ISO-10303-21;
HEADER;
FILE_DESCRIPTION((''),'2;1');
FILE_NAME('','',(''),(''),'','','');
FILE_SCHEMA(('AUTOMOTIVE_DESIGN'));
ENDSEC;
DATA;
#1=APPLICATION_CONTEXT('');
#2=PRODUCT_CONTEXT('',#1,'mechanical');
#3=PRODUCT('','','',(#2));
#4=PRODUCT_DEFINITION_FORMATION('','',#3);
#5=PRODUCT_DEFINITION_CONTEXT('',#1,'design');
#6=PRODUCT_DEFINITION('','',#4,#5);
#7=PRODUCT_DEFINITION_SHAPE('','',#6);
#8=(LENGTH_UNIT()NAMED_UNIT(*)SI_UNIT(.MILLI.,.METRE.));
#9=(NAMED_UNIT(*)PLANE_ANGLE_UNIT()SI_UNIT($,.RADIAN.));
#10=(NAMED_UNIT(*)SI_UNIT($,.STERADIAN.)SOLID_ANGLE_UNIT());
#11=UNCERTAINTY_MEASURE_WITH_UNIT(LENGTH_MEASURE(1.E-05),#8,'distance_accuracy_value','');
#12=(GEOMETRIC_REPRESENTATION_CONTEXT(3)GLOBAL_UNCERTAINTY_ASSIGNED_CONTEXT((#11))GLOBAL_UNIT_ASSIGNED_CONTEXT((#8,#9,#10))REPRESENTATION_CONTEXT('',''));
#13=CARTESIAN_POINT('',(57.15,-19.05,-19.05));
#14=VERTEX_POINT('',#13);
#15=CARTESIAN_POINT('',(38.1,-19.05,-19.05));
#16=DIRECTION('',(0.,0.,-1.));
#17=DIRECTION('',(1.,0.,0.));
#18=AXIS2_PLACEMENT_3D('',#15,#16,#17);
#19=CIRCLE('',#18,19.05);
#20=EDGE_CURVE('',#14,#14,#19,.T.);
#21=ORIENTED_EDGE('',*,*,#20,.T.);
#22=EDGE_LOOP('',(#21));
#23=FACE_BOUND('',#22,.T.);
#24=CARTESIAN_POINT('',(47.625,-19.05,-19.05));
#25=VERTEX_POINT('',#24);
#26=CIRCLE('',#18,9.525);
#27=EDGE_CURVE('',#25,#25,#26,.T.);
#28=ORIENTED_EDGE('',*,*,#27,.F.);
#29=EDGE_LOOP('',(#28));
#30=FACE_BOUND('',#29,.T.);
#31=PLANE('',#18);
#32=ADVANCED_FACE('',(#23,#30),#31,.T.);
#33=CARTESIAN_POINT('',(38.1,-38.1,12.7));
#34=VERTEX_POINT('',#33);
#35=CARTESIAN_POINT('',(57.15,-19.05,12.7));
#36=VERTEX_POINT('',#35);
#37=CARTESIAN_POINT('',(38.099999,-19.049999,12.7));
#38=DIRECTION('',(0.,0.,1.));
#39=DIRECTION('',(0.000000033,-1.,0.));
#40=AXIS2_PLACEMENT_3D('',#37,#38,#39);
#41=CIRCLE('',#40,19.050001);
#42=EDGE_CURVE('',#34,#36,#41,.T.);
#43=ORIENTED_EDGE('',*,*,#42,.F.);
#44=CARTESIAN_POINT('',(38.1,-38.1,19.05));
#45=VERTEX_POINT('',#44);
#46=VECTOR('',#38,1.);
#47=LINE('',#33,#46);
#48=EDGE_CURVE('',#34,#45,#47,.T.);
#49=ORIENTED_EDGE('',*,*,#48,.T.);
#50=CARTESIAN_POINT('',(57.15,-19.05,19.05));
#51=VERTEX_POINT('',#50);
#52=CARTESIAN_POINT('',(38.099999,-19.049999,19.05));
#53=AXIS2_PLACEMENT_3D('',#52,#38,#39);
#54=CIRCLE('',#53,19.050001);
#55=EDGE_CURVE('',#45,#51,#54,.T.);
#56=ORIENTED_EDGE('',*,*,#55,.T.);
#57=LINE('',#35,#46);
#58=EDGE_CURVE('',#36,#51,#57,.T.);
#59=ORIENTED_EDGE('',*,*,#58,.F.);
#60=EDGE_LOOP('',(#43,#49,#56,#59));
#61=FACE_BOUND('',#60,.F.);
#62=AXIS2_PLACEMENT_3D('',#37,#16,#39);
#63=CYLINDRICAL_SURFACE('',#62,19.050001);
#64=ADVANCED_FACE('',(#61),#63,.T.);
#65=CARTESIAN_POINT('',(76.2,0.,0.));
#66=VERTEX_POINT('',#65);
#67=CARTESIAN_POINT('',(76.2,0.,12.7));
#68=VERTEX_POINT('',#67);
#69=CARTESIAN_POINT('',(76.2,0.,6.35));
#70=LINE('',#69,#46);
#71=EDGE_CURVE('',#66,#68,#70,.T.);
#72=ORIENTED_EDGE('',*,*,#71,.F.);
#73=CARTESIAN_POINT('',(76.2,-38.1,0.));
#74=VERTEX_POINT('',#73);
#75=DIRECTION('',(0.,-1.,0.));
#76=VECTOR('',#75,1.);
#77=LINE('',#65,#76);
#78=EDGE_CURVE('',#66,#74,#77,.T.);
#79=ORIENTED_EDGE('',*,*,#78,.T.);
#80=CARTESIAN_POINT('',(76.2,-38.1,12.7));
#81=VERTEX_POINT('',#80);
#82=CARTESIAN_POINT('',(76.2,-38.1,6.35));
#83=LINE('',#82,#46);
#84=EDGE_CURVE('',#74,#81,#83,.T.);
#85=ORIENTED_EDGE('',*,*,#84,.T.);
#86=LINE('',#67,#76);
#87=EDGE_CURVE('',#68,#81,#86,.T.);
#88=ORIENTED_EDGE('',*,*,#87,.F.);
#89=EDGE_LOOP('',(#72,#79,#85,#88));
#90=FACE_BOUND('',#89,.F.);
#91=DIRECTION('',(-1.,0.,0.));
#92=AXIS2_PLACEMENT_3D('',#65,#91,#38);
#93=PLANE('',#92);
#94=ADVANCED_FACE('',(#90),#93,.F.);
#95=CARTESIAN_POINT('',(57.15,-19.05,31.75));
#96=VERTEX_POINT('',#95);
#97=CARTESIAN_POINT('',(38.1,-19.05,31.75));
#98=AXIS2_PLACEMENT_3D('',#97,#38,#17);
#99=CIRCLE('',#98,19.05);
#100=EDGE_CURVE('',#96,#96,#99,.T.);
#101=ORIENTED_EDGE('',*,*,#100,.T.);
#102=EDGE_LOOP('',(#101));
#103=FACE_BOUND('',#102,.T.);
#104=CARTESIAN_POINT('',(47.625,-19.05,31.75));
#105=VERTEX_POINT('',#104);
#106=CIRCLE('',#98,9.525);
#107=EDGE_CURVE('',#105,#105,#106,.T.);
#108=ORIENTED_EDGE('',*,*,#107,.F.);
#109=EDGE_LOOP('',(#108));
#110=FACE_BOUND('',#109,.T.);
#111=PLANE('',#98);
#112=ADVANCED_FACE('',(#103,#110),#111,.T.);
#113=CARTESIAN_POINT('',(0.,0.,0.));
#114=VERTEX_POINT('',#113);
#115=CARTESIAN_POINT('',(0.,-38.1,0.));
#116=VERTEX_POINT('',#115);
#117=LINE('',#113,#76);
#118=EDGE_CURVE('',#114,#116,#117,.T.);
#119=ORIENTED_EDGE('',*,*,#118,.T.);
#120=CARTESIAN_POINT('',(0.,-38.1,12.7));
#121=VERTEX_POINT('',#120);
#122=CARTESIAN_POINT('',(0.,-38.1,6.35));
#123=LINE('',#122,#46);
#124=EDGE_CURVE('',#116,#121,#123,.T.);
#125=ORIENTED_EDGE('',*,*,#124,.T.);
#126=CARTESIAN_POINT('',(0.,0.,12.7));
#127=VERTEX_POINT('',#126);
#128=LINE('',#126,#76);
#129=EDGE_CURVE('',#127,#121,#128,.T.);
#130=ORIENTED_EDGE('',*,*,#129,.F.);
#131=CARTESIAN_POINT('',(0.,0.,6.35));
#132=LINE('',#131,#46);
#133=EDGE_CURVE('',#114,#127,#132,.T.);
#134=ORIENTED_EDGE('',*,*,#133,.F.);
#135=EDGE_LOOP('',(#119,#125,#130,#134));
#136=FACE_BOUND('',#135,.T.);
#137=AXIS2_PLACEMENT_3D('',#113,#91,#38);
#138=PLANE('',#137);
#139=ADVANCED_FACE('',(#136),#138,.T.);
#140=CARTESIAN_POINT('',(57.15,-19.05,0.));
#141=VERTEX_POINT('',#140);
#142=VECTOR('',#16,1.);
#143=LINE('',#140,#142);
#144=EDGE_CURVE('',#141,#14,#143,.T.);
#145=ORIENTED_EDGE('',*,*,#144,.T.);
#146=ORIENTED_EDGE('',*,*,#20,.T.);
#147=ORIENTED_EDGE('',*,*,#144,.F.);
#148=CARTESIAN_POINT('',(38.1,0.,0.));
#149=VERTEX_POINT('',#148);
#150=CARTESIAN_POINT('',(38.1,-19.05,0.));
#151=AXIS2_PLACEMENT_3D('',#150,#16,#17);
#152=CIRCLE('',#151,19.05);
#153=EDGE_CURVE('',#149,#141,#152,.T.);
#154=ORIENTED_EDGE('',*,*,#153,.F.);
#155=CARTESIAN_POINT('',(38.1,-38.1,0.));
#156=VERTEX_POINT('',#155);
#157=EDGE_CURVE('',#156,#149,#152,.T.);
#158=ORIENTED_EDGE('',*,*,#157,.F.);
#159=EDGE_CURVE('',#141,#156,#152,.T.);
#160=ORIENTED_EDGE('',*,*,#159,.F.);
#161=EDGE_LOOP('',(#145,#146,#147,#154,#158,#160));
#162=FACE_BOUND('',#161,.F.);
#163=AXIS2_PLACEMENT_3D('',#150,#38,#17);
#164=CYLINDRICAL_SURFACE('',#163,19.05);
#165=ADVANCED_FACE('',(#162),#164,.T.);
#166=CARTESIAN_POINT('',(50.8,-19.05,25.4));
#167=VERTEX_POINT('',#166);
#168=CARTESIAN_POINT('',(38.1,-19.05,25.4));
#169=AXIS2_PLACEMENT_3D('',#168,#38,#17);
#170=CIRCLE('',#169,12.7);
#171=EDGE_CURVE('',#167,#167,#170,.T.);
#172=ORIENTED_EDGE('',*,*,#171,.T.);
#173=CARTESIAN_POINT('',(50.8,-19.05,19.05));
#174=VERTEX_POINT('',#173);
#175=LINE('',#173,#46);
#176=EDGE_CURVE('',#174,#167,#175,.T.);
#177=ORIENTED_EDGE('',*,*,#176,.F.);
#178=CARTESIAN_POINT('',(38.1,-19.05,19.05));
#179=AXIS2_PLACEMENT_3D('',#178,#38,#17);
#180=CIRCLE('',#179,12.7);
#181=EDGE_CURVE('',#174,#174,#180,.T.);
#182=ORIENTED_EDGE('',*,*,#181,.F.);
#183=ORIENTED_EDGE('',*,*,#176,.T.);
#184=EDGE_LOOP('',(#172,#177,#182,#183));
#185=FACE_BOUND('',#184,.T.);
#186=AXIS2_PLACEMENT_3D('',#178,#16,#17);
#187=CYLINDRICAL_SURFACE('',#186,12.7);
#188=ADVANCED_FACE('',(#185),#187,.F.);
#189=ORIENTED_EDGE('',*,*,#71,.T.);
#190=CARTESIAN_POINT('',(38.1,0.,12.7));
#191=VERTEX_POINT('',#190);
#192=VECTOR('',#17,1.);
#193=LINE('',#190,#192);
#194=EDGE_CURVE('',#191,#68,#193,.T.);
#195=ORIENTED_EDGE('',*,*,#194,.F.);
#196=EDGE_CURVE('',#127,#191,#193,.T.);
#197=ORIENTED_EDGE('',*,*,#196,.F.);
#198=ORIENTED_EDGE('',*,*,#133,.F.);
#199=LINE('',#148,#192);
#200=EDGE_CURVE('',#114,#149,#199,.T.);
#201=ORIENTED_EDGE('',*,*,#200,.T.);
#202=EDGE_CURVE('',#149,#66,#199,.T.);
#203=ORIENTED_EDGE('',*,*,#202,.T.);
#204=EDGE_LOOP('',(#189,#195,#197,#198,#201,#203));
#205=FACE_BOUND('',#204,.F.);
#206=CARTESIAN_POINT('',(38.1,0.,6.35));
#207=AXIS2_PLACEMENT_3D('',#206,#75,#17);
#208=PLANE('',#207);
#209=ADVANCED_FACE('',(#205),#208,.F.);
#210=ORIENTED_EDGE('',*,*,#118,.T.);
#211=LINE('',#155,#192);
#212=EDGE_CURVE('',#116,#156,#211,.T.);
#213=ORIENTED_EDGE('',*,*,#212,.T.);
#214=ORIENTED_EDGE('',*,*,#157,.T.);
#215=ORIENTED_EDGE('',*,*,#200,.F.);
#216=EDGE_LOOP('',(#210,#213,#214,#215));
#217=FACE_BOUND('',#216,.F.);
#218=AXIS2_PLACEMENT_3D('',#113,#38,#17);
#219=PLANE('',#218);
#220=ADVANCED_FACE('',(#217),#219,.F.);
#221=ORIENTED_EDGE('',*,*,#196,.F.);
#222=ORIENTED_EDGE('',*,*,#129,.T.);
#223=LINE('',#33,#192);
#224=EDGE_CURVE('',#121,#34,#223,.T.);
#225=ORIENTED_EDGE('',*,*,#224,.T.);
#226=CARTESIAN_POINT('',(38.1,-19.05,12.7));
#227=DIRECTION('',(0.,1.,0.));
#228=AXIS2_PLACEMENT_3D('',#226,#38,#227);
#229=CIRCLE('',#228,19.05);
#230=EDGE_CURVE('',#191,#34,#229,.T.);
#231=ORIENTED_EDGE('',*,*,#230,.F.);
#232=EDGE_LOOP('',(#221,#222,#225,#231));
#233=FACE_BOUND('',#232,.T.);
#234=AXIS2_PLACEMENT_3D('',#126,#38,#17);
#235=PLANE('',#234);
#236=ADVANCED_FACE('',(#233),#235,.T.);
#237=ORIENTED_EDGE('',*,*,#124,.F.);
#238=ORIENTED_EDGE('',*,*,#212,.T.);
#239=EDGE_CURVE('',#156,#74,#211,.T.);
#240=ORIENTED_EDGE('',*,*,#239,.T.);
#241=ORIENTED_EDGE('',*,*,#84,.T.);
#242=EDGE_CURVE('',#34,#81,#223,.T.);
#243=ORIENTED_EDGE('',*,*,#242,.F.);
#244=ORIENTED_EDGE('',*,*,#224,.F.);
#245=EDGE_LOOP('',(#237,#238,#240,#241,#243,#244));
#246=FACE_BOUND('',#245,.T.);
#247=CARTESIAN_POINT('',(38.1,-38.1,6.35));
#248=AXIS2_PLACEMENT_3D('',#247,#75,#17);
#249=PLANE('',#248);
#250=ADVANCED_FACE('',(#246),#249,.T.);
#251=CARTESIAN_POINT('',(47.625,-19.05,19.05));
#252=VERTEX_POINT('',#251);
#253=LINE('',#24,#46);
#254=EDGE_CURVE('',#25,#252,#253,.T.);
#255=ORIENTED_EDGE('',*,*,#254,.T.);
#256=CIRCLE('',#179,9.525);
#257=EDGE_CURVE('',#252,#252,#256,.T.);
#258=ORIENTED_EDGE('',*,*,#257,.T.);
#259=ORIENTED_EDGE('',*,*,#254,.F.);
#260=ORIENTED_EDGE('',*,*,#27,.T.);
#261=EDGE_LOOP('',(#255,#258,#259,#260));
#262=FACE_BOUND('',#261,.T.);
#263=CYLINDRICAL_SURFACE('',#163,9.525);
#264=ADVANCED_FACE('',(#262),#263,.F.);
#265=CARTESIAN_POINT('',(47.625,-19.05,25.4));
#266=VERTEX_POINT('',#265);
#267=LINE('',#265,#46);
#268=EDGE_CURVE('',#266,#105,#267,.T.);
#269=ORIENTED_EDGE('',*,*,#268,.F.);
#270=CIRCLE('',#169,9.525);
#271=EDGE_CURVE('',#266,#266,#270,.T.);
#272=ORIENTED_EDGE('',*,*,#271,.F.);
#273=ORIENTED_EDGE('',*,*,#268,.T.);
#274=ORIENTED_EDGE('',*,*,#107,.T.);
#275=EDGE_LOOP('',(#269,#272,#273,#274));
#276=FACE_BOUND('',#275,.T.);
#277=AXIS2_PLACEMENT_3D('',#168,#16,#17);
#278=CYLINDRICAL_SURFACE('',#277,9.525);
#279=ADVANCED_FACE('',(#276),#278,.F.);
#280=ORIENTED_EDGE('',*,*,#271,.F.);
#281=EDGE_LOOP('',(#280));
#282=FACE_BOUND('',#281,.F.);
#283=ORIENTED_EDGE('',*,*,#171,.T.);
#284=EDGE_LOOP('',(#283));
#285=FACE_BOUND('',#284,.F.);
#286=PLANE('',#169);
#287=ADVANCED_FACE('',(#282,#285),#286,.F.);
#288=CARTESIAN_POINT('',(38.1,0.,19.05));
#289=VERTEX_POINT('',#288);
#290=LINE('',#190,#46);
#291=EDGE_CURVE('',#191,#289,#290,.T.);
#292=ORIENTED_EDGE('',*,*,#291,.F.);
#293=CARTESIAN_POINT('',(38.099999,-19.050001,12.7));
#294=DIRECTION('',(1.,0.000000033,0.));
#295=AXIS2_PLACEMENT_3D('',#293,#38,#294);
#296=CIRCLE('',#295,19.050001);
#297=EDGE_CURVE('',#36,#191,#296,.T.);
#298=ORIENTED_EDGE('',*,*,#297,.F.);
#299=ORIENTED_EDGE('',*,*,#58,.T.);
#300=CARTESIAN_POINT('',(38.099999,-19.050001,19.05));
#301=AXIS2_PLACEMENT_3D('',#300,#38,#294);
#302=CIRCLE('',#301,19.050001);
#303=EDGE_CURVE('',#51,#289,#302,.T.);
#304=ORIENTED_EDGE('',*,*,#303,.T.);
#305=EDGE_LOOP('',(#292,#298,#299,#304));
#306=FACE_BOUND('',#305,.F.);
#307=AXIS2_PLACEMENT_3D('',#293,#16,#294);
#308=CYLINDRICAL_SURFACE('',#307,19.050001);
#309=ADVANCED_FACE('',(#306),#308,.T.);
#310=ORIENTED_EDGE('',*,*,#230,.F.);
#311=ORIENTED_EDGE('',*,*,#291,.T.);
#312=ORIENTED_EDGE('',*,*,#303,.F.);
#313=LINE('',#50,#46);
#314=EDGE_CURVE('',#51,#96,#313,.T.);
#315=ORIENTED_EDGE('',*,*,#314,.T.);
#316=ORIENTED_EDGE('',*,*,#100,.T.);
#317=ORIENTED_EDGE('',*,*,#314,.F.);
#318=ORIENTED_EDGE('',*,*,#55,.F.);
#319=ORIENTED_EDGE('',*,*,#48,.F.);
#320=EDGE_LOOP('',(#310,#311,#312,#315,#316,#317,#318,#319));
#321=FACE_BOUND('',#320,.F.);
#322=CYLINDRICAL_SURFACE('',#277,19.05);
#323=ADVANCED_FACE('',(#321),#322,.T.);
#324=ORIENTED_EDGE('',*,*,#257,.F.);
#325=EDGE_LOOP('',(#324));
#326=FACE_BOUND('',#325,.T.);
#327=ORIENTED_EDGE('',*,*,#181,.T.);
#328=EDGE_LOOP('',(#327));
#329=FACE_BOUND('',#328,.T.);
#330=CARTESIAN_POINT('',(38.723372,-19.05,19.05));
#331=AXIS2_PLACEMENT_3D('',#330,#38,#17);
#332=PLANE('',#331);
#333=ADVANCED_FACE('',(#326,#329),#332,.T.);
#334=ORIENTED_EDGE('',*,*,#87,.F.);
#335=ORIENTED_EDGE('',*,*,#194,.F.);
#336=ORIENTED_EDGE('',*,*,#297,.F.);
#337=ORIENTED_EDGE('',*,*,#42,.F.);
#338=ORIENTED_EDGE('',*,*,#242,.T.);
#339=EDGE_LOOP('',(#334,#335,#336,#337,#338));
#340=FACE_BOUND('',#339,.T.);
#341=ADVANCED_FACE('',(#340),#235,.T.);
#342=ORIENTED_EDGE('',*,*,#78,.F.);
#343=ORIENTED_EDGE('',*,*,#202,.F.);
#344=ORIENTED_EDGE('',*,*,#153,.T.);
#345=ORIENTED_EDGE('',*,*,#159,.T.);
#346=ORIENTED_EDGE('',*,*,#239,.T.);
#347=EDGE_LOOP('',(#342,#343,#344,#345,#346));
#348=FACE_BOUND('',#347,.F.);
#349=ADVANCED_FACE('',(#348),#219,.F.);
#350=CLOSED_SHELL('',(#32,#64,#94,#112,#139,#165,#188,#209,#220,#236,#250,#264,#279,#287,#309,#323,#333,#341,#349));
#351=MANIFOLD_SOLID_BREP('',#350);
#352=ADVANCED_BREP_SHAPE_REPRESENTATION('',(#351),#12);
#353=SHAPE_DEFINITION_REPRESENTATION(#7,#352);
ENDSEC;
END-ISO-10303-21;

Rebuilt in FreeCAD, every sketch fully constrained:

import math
import FreeCAD as App
import Part
import Sketcher
Q = App.Units.Quantity

doc = App.newDocument("Part")
body = doc.addObject("PartDesign::Body", "Body")

sketch1 = body.newObject("Sketcher::SketchObject", "Sketch")
sketch1.AttachmentSupport = (doc.getObject("XZ_Plane"), [""])
sketch1.MapMode = "FlatFace"
sketch1.addGeometry([
    Part.LineSegment(App.Vector(0, 13, 0), App.Vector(0, 0, 0)),
    Part.LineSegment(App.Vector(0, 0, 0), App.Vector(76, 0, 0)),
    Part.LineSegment(App.Vector(76, 0, 0), App.Vector(76, 13, 0)),
    Part.LineSegment(App.Vector(76, 13, 0), App.Vector(0, 13, 0)),
], False)
sketch1.addConstraint([
    Sketcher.Constraint("Coincident", 0, 2, 1, 1),
    Sketcher.Constraint("Coincident", 1, 2, 2, 1),
    Sketcher.Constraint("Coincident", 2, 2, 3, 1),
    Sketcher.Constraint("Coincident", 3, 2, 0, 1),
    Sketcher.Constraint("Vertical", 0),
    Sketcher.Constraint("Horizontal", 1),
    Sketcher.Constraint("Vertical", 2),
    Sketcher.Constraint("Horizontal", 3),
    Sketcher.Constraint("Coincident", 0, 2, -1, 1),
    Sketcher.Constraint("DistanceX", 1, 1, 1, 2, Q("3 in")),
    Sketcher.Constraint("DistanceY", 0, 2, 0, 1, Q("0.5 in")),
])
pad1 = body.newObject("PartDesign::Pad", "Pad")
pad1.Profile = sketch1
pad1.Length = Q("1.5 in")

sketch2 = body.newObject("Sketcher::SketchObject", "Sketch001")
sketch2.AttachmentSupport = (doc.getObject("XY_Plane"), [""])
sketch2.MapMode = "FlatFace"
sketch2.AttachmentOffset = App.Placement(App.Vector(0, 0, 0.5 * 25.4), App.Rotation())
sketch2.addGeometry([
    Part.ArcOfCircle(Part.Circle(App.Vector(38, -19, 0), App.Vector(0, 0, 1), 19), math.radians(-90), math.radians(0)),
    Part.ArcOfCircle(Part.Circle(App.Vector(38, -19, 0), App.Vector(0, 0, 1), 19), math.radians(0), math.radians(90)),
    Part.ArcOfCircle(Part.Circle(App.Vector(38, -19, 0), App.Vector(0, 0, 1), 19), math.radians(90), math.radians(270)),
    Part.Circle(App.Vector(38, -19, 0), App.Vector(0, 0, 1), 10),
], False)
sketch2.addConstraint([
    Sketcher.Constraint("Tangent", 0, 2, 1, 1),
    Sketcher.Constraint("Tangent", 1, 2, 2, 1),
    Sketcher.Constraint("Tangent", 2, 2, 0, 1),
    Sketcher.Constraint("Coincident", 3, 3, 0, 3),
    Sketcher.Constraint("PointOnObject", 1, 2, -1),
    Sketcher.Constraint("Horizontal", 3, 3, 0, 2),
    Sketcher.Constraint("Vertical", 3, 3, 1, 2),
    Sketcher.Constraint("Vertical", 1, 2, 2, 2),
    Sketcher.Constraint("Diameter", 3, Q("0.75 in")),
    Sketcher.Constraint("Radius", 0, Q("0.75 in")),
    Sketcher.Constraint("DistanceX", -1, 1, 0, 3, Q("1.5 in")),
])
pad2 = body.newObject("PartDesign::Pad", "Pad001")
pad2.Profile = sketch2
pad2.Length = Q("0.25 in")

sketch3 = body.newObject("Sketcher::SketchObject", "Sketch002")
sketch3.AttachmentSupport = (doc.getObject("XY_Plane"), [""])
sketch3.MapMode = "FlatFace"
sketch3.AttachmentOffset = App.Placement(App.Vector(0, 0, 0.5 * 25.4), App.Rotation())
sketch3.addGeometry(Part.Circle(App.Vector(38, -19, 0), App.Vector(0, 0, 1), 10), False)
sketch3.addConstraint([
    Sketcher.Constraint("Diameter", 0, Q("0.75 in")),
    Sketcher.Constraint("DistanceX", -1, 1, 0, 3, Q("1.5 in")),
    Sketcher.Constraint("DistanceY", 0, 3, -1, 1, Q("0.75 in")),
])
pocket1 = body.newObject("PartDesign::Pocket", "Pocket")
pocket1.Profile = sketch3
pocket1.Type = "ThroughAll"

sketch4 = body.newObject("Sketcher::SketchObject", "Sketch003")
sketch4.AttachmentSupport = (doc.getObject("XY_Plane"), [""])
sketch4.MapMode = "FlatFace"
sketch4.addGeometry([
    Part.Circle(App.Vector(38, -19, 0), App.Vector(0, 0, 1), 19),
    Part.Circle(App.Vector(38, -19, 0), App.Vector(0, 0, 1), 10),
], False)
sketch4.addConstraint([
    Sketcher.Constraint("Coincident", 1, 3, 0, 3),
    Sketcher.Constraint("Diameter", 0, Q("1.5 in")),
    Sketcher.Constraint("Diameter", 1, Q("0.75 in")),
    Sketcher.Constraint("DistanceX", -1, 1, 0, 3, Q("1.5 in")),
    Sketcher.Constraint("DistanceY", 0, 3, -1, 1, Q("0.75 in")),
])
pad3 = body.newObject("PartDesign::Pad", "Pad002")
pad3.Profile = sketch4
pad3.Length = Q("0.75 in")
pad3.Reversed = True

sketch5 = body.newObject("Sketcher::SketchObject", "Sketch004")
sketch5.AttachmentSupport = (doc.getObject("XY_Plane"), [""])
sketch5.MapMode = "FlatFace"
sketch5.AttachmentOffset = App.Placement(App.Vector(0, 0, 0.75 * 25.4), App.Rotation())
sketch5.addGeometry([
    Part.Circle(App.Vector(38, -19, 0), App.Vector(0, 0, 1), 19),
    Part.Circle(App.Vector(38, -19, 0), App.Vector(0, 0, 1), 13),
], False)
sketch5.addConstraint([
    Sketcher.Constraint("Coincident", 1, 3, 0, 3),
    Sketcher.Constraint("Diameter", 1, Q("1 in")),
    Sketcher.Constraint("Diameter", 0, Q("1.5 in")),
    Sketcher.Constraint("DistanceX", -1, 1, 0, 3, Q("1.5 in")),
    Sketcher.Constraint("DistanceY", 0, 3, -1, 1, Q("0.75 in")),
])
pad4 = body.newObject("PartDesign::Pad", "Pad003")
pad4.Profile = sketch5
pad4.Length = Q("0.25 in")

sketch6 = body.newObject("Sketcher::SketchObject", "Sketch005")
sketch6.AttachmentSupport = (doc.getObject("XY_Plane"), [""])
sketch6.MapMode = "FlatFace"
sketch6.AttachmentOffset = App.Placement(App.Vector(0, 0, 1 * 25.4), App.Rotation())
sketch6.addGeometry([
    Part.Circle(App.Vector(38, -19, 0), App.Vector(0, 0, 1), 19),
    Part.Circle(App.Vector(38, -19, 0), App.Vector(0, 0, 1), 10),
], False)
sketch6.addConstraint([
    Sketcher.Constraint("Coincident", 1, 3, 0, 3),
    Sketcher.Constraint("Diameter", 0, Q("1.5 in")),
    Sketcher.Constraint("Diameter", 1, Q("0.75 in")),
    Sketcher.Constraint("DistanceX", -1, 1, 0, 3, Q("1.5 in")),
    Sketcher.Constraint("DistanceY", 0, 3, -1, 1, Q("0.75 in")),
])
pad5 = body.newObject("PartDesign::Pad", "Pad004")
pad5.Profile = sketch6
pad5.Length = Q("0.25 in")

doc.recompute()
